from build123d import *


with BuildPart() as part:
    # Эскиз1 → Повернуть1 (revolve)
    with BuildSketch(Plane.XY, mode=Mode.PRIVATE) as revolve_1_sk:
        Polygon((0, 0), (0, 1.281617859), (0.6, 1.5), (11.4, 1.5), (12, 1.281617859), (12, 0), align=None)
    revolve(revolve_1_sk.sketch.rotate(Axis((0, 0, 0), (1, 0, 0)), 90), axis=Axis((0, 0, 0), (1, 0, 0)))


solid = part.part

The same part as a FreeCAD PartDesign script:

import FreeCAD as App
import Part
import Sketcher
Q = App.Units.Quantity


def add_polygon(sketch, points):
    """Adds a closed chain of lines whose ends are joined by coincident constraints."""
    first, n = sketch.GeometryCount, len(points)
    for a, b in zip(points, points[1:] + points[:1]):
        sketch.addGeometry(Part.LineSegment(App.Vector(*a, 0), App.Vector(*b, 0)), False)
    for i in range(n):
        sketch.addConstraint(Sketcher.Constraint("Coincident", first + i, 2, first + (i + 1) % n, 1))

doc = App.newDocument("Part")
body = doc.addObject("PartDesign::Body", "Body")

# Sketch on XY plane
sketch1 = body.newObject("Sketcher::SketchObject", "Sketch")
sketch1.AttachmentSupport = (doc.getObject("XY_Plane"), [""])
sketch1.MapMode = "FlatFace"
add_polygon(sketch1, [(0, 1.281618), (0, 0), (12, 0), (12, 1.281618), (11.4, 1.5), (0.6, 1.5)])  # lines 0-5
sketch1.addConstraint(Sketcher.Constraint("Vertical", 0))
sketch1.addConstraint(Sketcher.Constraint("Horizontal", 1))
sketch1.addConstraint(Sketcher.Constraint("Vertical", 2))
sketch1.addConstraint(Sketcher.Constraint("Horizontal", 4))
sketch1.addConstraint(Sketcher.Constraint("Coincident", 0, 2, -1, 1))
sketch1.addConstraint(Sketcher.Constraint("Horizontal", 2, 2, 5, 2))
sketch1.addConstraint(Sketcher.Constraint("Equal", 3, 5))
sketch1.addConstraint(Sketcher.Constraint("DistanceX", 1, 1, 1, 2, Q("12 mm")))
sketch1.addConstraint(Sketcher.Constraint("Angle", 3, Q("160 deg")))
sketch1.addConstraint(Sketcher.Constraint("DistanceX", 4, 2, 4, 1, Q("10.8 mm")))
sketch1.addConstraint(Sketcher.Constraint("DistanceY", -1, 1, 3, 2, Q("1.5 mm")))
revolution = body.newObject("PartDesign::Revolution", "Revolution")
revolution.Profile = sketch1
revolution.ReferenceAxis = (sketch1, ["H_Axis"])
revolution.Angle = 360

doc.recompute()
